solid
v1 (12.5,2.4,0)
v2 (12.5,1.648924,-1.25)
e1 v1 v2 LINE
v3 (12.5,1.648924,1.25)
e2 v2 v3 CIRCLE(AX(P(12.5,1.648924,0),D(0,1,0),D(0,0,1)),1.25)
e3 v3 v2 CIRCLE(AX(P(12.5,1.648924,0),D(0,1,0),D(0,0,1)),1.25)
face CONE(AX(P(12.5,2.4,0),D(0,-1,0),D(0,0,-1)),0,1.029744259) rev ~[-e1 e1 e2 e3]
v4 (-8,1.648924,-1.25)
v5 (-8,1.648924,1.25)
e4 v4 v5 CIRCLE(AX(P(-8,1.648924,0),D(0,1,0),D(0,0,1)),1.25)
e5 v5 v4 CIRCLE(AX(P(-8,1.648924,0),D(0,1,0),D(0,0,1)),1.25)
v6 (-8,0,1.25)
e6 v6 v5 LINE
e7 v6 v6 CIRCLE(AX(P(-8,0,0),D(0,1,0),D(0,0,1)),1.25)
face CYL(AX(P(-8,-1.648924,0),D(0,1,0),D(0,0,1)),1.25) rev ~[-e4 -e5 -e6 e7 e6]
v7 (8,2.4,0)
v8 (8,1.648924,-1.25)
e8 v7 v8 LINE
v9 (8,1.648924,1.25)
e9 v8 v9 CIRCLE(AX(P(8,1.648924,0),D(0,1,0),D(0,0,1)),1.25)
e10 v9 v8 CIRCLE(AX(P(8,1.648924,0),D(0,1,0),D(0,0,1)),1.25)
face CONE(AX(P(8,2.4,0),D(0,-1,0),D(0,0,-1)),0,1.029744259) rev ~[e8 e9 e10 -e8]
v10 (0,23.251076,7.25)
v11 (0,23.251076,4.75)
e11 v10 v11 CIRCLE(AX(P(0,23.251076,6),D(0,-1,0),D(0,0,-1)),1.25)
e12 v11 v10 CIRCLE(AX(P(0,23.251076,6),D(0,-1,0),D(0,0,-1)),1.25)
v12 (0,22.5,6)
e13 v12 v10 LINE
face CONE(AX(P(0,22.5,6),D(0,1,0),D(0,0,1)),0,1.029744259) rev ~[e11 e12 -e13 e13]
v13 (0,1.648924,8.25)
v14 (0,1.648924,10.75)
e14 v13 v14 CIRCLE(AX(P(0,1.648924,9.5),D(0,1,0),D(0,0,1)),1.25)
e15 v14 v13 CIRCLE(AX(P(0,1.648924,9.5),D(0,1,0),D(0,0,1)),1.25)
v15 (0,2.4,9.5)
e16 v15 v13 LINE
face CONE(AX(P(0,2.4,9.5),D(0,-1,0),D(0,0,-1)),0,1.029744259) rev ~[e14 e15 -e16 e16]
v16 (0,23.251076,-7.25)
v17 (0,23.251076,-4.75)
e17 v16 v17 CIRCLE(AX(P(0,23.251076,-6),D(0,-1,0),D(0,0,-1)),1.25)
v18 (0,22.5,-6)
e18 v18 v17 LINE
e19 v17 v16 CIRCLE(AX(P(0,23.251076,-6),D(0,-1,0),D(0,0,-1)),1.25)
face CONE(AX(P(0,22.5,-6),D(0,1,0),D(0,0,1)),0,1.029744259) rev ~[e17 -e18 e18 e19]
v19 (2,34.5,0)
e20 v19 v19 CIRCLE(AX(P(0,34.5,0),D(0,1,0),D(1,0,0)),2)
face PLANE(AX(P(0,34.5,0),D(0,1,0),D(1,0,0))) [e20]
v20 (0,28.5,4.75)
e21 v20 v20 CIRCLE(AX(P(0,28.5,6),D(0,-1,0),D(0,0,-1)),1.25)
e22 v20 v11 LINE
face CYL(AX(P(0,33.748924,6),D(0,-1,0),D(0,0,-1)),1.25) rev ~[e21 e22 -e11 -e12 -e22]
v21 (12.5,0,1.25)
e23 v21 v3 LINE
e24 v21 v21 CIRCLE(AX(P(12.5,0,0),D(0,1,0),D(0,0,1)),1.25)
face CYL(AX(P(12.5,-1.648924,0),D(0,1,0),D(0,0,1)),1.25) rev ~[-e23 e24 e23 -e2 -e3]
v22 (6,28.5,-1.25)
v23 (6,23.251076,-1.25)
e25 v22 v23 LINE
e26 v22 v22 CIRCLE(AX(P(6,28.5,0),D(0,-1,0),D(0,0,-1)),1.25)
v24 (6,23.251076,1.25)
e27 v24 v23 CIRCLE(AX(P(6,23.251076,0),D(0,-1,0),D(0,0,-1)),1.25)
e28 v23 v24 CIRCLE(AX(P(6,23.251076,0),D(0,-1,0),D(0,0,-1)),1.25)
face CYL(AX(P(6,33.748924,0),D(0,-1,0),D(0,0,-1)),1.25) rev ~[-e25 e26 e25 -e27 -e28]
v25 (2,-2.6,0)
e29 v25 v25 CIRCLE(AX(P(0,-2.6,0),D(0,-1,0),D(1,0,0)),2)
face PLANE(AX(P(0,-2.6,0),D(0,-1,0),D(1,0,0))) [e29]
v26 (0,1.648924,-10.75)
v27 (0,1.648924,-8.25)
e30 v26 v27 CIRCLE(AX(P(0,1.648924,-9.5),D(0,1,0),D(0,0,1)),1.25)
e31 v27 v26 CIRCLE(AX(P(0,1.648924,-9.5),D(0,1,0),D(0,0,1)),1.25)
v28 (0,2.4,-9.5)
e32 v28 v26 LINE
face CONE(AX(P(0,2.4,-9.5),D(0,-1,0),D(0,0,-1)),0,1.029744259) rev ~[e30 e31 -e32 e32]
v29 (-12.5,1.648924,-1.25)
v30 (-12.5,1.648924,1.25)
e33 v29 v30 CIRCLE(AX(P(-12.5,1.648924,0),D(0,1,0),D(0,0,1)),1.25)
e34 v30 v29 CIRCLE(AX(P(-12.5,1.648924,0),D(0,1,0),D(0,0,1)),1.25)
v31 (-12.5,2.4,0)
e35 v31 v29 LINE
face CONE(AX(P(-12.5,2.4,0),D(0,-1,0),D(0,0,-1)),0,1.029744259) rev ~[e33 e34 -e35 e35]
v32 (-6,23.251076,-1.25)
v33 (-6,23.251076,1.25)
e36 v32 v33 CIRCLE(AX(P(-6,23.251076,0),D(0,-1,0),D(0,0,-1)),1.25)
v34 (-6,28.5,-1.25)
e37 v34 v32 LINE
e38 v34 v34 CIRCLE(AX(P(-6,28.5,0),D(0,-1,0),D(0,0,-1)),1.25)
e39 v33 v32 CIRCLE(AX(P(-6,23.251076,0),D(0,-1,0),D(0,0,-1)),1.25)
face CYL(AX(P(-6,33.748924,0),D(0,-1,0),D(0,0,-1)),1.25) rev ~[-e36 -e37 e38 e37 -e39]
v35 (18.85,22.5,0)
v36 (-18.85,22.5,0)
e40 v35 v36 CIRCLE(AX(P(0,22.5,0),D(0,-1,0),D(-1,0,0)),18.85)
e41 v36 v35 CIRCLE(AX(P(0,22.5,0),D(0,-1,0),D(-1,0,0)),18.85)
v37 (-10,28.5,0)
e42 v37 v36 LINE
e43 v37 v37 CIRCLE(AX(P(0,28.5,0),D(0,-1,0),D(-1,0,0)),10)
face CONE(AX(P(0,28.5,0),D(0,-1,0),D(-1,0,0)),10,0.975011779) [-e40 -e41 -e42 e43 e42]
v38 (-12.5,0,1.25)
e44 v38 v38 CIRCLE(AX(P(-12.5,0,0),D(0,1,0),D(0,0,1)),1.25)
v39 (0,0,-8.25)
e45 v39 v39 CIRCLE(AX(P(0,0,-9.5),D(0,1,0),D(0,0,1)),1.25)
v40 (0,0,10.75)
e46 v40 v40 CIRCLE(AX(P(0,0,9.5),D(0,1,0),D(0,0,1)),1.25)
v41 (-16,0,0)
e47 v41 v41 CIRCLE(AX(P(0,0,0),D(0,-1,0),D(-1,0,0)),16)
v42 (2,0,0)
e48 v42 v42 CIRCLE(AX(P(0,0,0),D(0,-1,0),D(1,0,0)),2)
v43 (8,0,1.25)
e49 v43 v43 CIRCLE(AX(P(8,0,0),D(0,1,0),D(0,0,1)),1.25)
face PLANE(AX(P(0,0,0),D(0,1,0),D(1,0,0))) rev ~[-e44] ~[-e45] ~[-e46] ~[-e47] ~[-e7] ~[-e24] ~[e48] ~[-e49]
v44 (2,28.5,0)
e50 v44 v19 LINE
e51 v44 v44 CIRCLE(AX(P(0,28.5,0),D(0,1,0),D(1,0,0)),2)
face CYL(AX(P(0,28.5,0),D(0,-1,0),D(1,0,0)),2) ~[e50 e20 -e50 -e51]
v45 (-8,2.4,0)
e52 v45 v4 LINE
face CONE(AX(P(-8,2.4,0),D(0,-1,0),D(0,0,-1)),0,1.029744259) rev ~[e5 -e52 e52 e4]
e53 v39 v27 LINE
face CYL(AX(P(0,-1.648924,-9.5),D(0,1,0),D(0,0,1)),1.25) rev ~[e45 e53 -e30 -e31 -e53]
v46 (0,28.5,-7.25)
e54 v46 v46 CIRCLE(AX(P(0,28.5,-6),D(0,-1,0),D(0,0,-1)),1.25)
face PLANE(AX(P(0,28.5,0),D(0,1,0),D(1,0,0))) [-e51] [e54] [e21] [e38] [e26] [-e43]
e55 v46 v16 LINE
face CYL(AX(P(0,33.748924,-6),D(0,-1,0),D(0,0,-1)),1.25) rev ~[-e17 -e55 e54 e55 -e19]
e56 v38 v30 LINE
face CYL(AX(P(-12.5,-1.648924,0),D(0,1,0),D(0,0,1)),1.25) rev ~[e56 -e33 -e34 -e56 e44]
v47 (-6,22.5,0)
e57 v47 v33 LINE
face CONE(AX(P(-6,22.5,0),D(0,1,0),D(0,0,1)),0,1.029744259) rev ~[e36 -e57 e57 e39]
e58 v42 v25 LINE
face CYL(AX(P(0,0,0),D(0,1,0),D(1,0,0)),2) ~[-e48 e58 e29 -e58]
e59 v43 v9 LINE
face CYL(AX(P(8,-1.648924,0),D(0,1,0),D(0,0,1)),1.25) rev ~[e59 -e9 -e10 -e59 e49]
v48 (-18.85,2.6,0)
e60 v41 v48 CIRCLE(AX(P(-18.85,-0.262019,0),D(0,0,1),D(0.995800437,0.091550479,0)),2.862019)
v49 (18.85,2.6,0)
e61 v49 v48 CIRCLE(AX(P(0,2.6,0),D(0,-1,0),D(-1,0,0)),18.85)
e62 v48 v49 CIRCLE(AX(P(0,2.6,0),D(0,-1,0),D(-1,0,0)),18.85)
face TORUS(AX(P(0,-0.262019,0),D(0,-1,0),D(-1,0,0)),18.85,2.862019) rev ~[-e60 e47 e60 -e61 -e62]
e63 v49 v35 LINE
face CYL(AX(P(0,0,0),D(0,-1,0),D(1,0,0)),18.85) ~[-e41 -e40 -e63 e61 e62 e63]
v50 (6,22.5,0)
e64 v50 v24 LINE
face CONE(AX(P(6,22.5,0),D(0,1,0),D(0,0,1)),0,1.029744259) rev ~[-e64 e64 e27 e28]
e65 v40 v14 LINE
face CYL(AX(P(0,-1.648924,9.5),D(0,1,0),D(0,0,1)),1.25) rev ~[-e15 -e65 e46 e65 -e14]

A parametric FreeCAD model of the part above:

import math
import FreeCAD as App
import Part
import Sketcher
Q = App.Units.Quantity

doc = App.newDocument("Part")
body = doc.addObject("PartDesign::Body", "Body")

# Sketch on XZ plane
sketch1 = body.newObject("Sketcher::SketchObject", "Sketch")
sketch1.AttachmentSupport = (doc.getObject("XZ_Plane"), [""])
sketch1.MapMode = "FlatFace"
sketch1.addGeometry(Part.Circle(App.Vector(0, 0, 0), App.Vector(0, 0, 1), 19), False)
sketch1.addConstraint([
    Sketcher.Constraint("Coincident", 0, 3, -1, 1),
    Sketcher.Constraint("Diameter", 0, Q("37.7 mm")),
])
pad1 = body.newObject("PartDesign::Pad", "Pad")
pad1.Profile = sketch1
pad1.Length = 28.5
pad1.Reversed = True

# Sketch on XZ plane
sketch2 = body.newObject("Sketcher::SketchObject", "Sketch001")
sketch2.AttachmentSupport = (doc.getObject("XZ_Plane"), [""])
sketch2.MapMode = "FlatFace"
sketch2.AttachmentOffset = App.Placement(App.Vector(0, 0, -28.5), App.Rotation())
sketch2.addGeometry(Part.Circle(App.Vector(0, 0, 0), App.Vector(0, 0, 1), 2), False)
sketch2.addConstraint([
    Sketcher.Constraint("Coincident", 0, 3, -1, 1),
    Sketcher.Constraint("Diameter", 0, Q("4 mm")),
])
pad2 = body.newObject("PartDesign::Pad", "Pad001")
pad2.Profile = sketch2
pad2.Length = 6
pad2.Reversed = True

# Sketch on XZ plane
sketch3 = body.newObject("Sketcher::SketchObject", "Sketch002")
sketch3.AttachmentSupport = (doc.getObject("XZ_Plane"), [""])
sketch3.MapMode = "FlatFace"
sketch3.addGeometry(Part.Circle(App.Vector(0, 0, 0), App.Vector(0, 0, 1), 2), False)
sketch3.addConstraint([
    Sketcher.Constraint("Coincident", 0, 3, -1, 1),
    Sketcher.Constraint("Diameter", 0, Q("4 mm")),
])
pad3 = body.newObject("PartDesign::Pad", "Pad002")
pad3.Profile = sketch3
pad3.Length = 2.6

# Sketch on XZ plane
sketch4 = body.newObject("Sketcher::SketchObject", "Sketch003")
sketch4.AttachmentSupport = (doc.getObject("XZ_Plane"), [""])
sketch4.MapMode = "FlatFace"
sketch4.addGeometry([
    Part.Circle(App.Vector(0, 9.5, 0), App.Vector(0, 0, 1), 1.2),  # 0
    Part.Circle(App.Vector(8, 0, 0), App.Vector(0, 0, 1), 1.2),  # 1
    Part.Circle(App.Vector(12.5, 0, 0), App.Vector(0, 0, 1), 1.2),  # 2
    Part.Circle(App.Vector(0, -9.5, 0), App.Vector(0, 0, 1), 1.2),  # 3
    Part.Circle(App.Vector(-8, 0, 0), App.Vector(0, 0, 1), 1.2),  # 4
    Part.Circle(App.Vector(-12.5, 0, 0), App.Vector(0, 0, 1), 1.2),  # 5
], False)
sketch4.addConstraint([
    Sketcher.Constraint("Equal", 0, 1),
    Sketcher.Constraint("Equal", 1, 2),
    Sketcher.Constraint("Equal", 2, 3),
    Sketcher.Constraint("Equal", 3, 4),
    Sketcher.Constraint("Equal", 4, 5),
    Sketcher.Constraint("Symmetric", 0, 3, 3, 3, -1, 1),
    Sketcher.Constraint("Symmetric", 1, 3, 4, 3, -1, 1),
    Sketcher.Constraint("Symmetric", 2, 3, 5, 3, -1, 1),
    Sketcher.Constraint("PointOnObject", 0, 3, -2),
    Sketcher.Constraint("PointOnObject", 1, 3, -1),
    Sketcher.Constraint("PointOnObject", 2, 3, -1),
    Sketcher.Constraint("Diameter", 0, Q("2.5 mm")),
    Sketcher.Constraint("DistanceX", -1, 1, 1, 3, Q("8 mm")),
    Sketcher.Constraint("DistanceY", 3, 3, 0, 3, Q("19 mm")),
    Sketcher.Constraint("DistanceX", 5, 3, 2, 3, Q("25 mm")),
])
doc.recompute()
hole = body.newObject("PartDesign::Hole", "Hole")
hole.Profile = sketch4
hole.ThreadType = "None"
hole.Diameter = 2.5
hole.DepthType = "Dimension"
hole.Depth = 1.648924
hole.DrillPoint = "Angled"
hole.DrillPointAngle = 118

# Sketch on XY plane
sketch5 = body.newObject("Sketcher::SketchObject", "Sketch004")
sketch5.AttachmentSupport = (doc.getObject("XY_Plane"), [""])
sketch5.MapMode = "FlatFace"
sketch5.addGeometry([
    Part.LineSegment(App.Vector(-10, 28.5, 0), App.Vector(-18.9, 28.5, 0)),  # 0
    Part.LineSegment(App.Vector(-18.9, 28.5, 0), App.Vector(-18.9, 22.5, 0)),  # 1
    Part.LineSegment(App.Vector(-18.9, 22.5, 0), App.Vector(-10, 28.5, 0)),  # 2
    Part.LineSegment(App.Vector(-18.9, 2.6, 0), App.Vector(-18.9, 0, 0)),  # 3
    Part.LineSegment(App.Vector(-18.9, 0, 0), App.Vector(-16, 0, 0)),  # 4
    Part.ArcOfCircle(Part.Circle(App.Vector(-18.9, -0.3, 0), App.Vector(0, 0, 1), 2.9), math.radians(5), math.radians(90)),  # 5
], False)
sketch5.addConstraint([
    Sketcher.Constraint("Coincident", 0, 2, 1, 1),
    Sketcher.Constraint("Coincident", 1, 2, 2, 1),
    Sketcher.Constraint("Coincident", 2, 2, 0, 1),
    Sketcher.Constraint("Coincident", 3, 2, 4, 1),
    Sketcher.Constraint("Coincident", 4, 2, 5, 1),
    Sketcher.Constraint("Coincident", 5, 2, 3, 1),
    Sketcher.Constraint("Horizontal", 0),
    Sketcher.Constraint("Vertical", 1),
    Sketcher.Constraint("Vertical", 3),
    Sketcher.Constraint("Horizontal", 4),
    Sketcher.Constraint("PointOnObject", 3, 2, -1),
    Sketcher.Constraint("Vertical", 5, 3, 0, 2),
    Sketcher.Constraint("Vertical", 1, 2, 3, 2),
    Sketcher.Constraint("DistanceY", 1, 2, 1, 1, Q("6 mm")),
    Sketcher.Constraint("DistanceY", 3, 2, 3, 1, Q("2.6 mm")),
    Sketcher.Constraint("DistanceX", 2, 2, -1, 1, Q("10 mm")),
    Sketcher.Constraint("DistanceX", 4, 2, -1, 1, Q("16 mm")),
    Sketcher.Constraint("DistanceX", 0, 2, 0, 1, Q("8.85 mm")),
    Sketcher.Constraint("DistanceY", -1, 1, 0, 2, Q("28.5 mm")),
])
groove = body.newObject("PartDesign::Groove", "Groove")
groove.Profile = sketch5
groove.ReferenceAxis = (sketch5, ["V_Axis"])
groove.Angle = 360

# Sketch on XZ plane
sketch6 = body.newObject("Sketcher::SketchObject", "Sketch005")
sketch6.AttachmentSupport = (doc.getObject("XZ_Plane"), [""])
sketch6.MapMode = "FlatFace"
sketch6.AttachmentOffset = App.Placement(App.Vector(0, 0, -28.5), App.Rotation())
sketch6.addGeometry([
    Part.Circle(App.Vector(0, -6, 0), App.Vector(0, 0, 1), 1.2),
    Part.Circle(App.Vector(6, 0, 0), App.Vector(0, 0, 1), 1.2),
    Part.Circle(App.Vector(0, 6, 0), App.Vector(0, 0, 1), 1.2),
    Part.Circle(App.Vector(-6, 0, 0), App.Vector(0, 0, 1), 1.2),
], False)
sketch6.addConstraint([
    Sketcher.Constraint("Equal", 0, 1),
    Sketcher.Constraint("Equal", 1, 2),
    Sketcher.Constraint("Equal", 2, 3),
    Sketcher.Constraint("Symmetric", 0, 3, 2, 3, -1, 1),
    Sketcher.Constraint("Symmetric", 1, 3, 3, 3, -1, 1),
    Sketcher.Constraint("PointOnObject", 0, 3, -2),
    Sketcher.Constraint("PointOnObject", 1, 3, -1),
    Sketcher.Constraint("Diameter", 0, Q("2.5 mm")),
    Sketcher.Constraint("DistanceY", 0, 3, -1, 1, Q("6 mm")),
    Sketcher.Constraint("DistanceX", -1, 1, 1, 3, Q("6 mm")),
])
doc.recompute()
hole2 = body.newObject("PartDesign::Hole", "Hole001")
hole2.Profile = sketch6
hole2.ThreadType = "None"
hole2.Diameter = 2.5
hole2.DepthType = "Dimension"
hole2.Depth = 5.248924
hole2.DrillPoint = "Angled"
hole2.DrillPointAngle = 118
hole2.Reversed = True

doc.recompute()
